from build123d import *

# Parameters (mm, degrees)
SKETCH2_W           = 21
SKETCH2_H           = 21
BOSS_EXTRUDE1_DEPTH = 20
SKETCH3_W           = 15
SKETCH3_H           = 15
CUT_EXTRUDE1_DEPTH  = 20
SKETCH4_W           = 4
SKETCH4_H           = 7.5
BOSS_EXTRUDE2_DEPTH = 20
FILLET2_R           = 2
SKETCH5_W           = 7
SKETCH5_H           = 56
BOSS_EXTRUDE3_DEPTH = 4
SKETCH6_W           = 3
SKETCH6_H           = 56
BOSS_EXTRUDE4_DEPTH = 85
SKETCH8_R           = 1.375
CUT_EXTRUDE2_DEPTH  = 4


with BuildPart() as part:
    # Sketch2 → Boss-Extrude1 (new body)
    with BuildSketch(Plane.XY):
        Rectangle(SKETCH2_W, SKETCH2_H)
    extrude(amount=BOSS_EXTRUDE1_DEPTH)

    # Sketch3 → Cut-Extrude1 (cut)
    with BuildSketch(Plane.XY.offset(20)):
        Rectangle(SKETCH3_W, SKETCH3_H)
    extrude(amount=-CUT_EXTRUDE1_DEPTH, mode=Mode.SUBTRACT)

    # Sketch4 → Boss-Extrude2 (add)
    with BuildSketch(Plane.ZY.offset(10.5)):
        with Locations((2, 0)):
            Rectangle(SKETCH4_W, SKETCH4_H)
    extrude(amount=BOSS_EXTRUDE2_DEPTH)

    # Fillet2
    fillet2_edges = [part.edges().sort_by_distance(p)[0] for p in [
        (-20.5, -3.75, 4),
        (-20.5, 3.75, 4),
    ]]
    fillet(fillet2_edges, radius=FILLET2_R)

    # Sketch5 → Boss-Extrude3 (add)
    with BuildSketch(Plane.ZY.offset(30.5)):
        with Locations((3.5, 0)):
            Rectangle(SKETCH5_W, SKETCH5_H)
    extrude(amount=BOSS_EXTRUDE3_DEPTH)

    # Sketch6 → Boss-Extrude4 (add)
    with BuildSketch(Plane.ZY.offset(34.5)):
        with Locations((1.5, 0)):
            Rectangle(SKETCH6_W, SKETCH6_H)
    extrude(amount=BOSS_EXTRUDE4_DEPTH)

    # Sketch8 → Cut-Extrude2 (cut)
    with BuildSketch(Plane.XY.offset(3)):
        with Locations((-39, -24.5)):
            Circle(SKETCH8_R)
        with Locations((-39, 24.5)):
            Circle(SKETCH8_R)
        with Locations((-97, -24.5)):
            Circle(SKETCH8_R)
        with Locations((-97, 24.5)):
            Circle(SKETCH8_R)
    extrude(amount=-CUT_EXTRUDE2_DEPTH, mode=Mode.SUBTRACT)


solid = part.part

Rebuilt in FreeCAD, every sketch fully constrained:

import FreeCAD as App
import Part
import Sketcher


def edges_at(feature, points):
    """Names of the edges that pass closest to the given points."""
    edges = feature.Shape.Edges
    near = lambda p: min(range(len(edges)), key=lambda i: edges[i].distToShape(Part.Vertex(*p))[0])
    return sorted({f"Edge{near(p) + 1}" for p in points})


def add_polygon(sketch, points):
    """Adds a closed chain of lines whose ends are joined by coincident constraints."""
    first, n = sketch.GeometryCount, len(points)
    for a, b in zip(points, points[1:] + points[:1]):
        sketch.addGeometry(Part.LineSegment(App.Vector(*a, 0), App.Vector(*b, 0)), False)
    for i in range(n):
        sketch.addConstraint(Sketcher.Constraint("Coincident", first + i, 2, first + (i + 1) % n, 1))

doc = App.newDocument("Part")
body = doc.addObject("PartDesign::Body", "Body")

sketch1 = body.newObject("Sketcher::SketchObject", "Sketch")
sketch1.AttachmentSupport = (doc.getObject("XY_Plane"), [""])
sketch1.MapMode = "FlatFace"
add_polygon(sketch1, [(-10, 10), (-10, -10), (10, -10), (10, 10)])
sketch1.addConstraint([
    Sketcher.Constraint("Vertical", 0),
    Sketcher.Constraint("Horizontal", 1),
    Sketcher.Constraint("Vertical", 2),
    Sketcher.Constraint("Horizontal", 3),
    Sketcher.Constraint("Symmetric", 0, 2, 2, 2, -1, 1),
    Sketcher.Constraint("Equal", 3, 0),
    Sketcher.Constraint("DistanceX", 1, 1, 1, 2, 21.0),
])
pad1 = body.newObject("PartDesign::Pad", "Pad")
pad1.Profile = sketch1
pad1.Length = 20

sketch2 = body.newObject("Sketcher::SketchObject", "Sketch001")
sketch2.AttachmentSupport = (doc.getObject("XY_Plane"), [""])
sketch2.MapMode = "FlatFace"
sketch2.AttachmentOffset = App.Placement(App.Vector(0, 0, 20), App.Rotation())
add_polygon(sketch2, [(-8, 8), (-8, -8), (8, -8), (8, 8)])
sketch2.addConstraint([
    Sketcher.Constraint("Vertical", 0),
    Sketcher.Constraint("Horizontal", 1),
    Sketcher.Constraint("Vertical", 2),
    Sketcher.Constraint("Horizontal", 3),
    Sketcher.Constraint("Symmetric", 0, 2, 2, 2, -1, 1),
    Sketcher.Constraint("Equal", 3, 0),
    Sketcher.Constraint("DistanceX", 1, 1, 1, 2, 15.0),
])
pocket1 = body.newObject("PartDesign::Pocket", "Pocket")
pocket1.Profile = sketch2
pocket1.Length = 20

sketch3 = body.newObject("Sketcher::SketchObject", "Sketch002")
sketch3.AttachmentSupport = (doc.getObject("YZ_Plane"), [""])
sketch3.MapMode = "FlatFace"
sketch3.AttachmentOffset = App.Placement(App.Vector(0, 0, -10.5), App.Rotation())
add_polygon(sketch3, [(3.8, 0), (-3.8, 0), (-3.8, 4), (3.8, 4)])
sketch3.addConstraint([
    Sketcher.Constraint("Horizontal", 0),
    Sketcher.Constraint("Vertical", 1),
    Sketcher.Constraint("Horizontal", 2),
    Sketcher.Constraint("Vertical", 3),
    Sketcher.Constraint("Symmetric", 0, 2, 3, 2, -1, 1),
    Sketcher.Constraint("DistanceY", 1, 1, 1, 2, 4.0),
    Sketcher.Constraint("DistanceX", 0, 2, 0, 1, 7.5),
])
pad2 = body.newObject("PartDesign::Pad", "Pad001")
pad2.Profile = sketch3
pad2.Length = 20
pad2.Reversed = True
doc.recompute()

fillet = body.newObject("PartDesign::Fillet", "Fillet")
fillet.Base = (pad2, edges_at(pad2, [(-20.5, -3.75, 4), (-20.5, 3.75, 4)]))
fillet.Radius = 2

sketch4 = body.newObject("Sketcher::SketchObject", "Sketch003")
sketch4.AttachmentSupport = (doc.getObject("YZ_Plane"), [""])
sketch4.MapMode = "FlatFace"
sketch4.AttachmentOffset = App.Placement(App.Vector(0, 0, -30.5), App.Rotation())
add_polygon(sketch4, [(28, 0), (-28, 0), (-28, 7), (28, 7)])
sketch4.addConstraint([
    Sketcher.Constraint("Horizontal", 0),
    Sketcher.Constraint("Vertical", 1),
    Sketcher.Constraint("Horizontal", 2),
    Sketcher.Constraint("Vertical", 3),
    Sketcher.Constraint("Symmetric", 0, 2, 3, 2, -1, 1),
    Sketcher.Constraint("DistanceX", 0, 2, 0, 1, 56.0),
    Sketcher.Constraint("DistanceY", 1, 1, 1, 2, 7.0),
])
pad3 = body.newObject("PartDesign::Pad", "Pad002")
pad3.Profile = sketch4
pad3.Length = 4
pad3.Reversed = True

sketch5 = body.newObject("Sketcher::SketchObject", "Sketch004")
sketch5.AttachmentSupport = (doc.getObject("YZ_Plane"), [""])
sketch5.MapMode = "FlatFace"
sketch5.AttachmentOffset = App.Placement(App.Vector(0, 0, -34.5), App.Rotation())
add_polygon(sketch5, [(28, 0), (-28, 0), (-28, 3), (28, 3)])
sketch5.addConstraint([
    Sketcher.Constraint("Horizontal", 0),
    Sketcher.Constraint("Vertical", 1),
    Sketcher.Constraint("Horizontal", 2),
    Sketcher.Constraint("Vertical", 3),
    Sketcher.Constraint("Symmetric", 0, 2, 3, 2, -1, 1),
    Sketcher.Constraint("DistanceX", 0, 2, 0, 1, 56.0),
    Sketcher.Constraint("DistanceY", 1, 1, 1, 2, 3.0),
])
pad4 = body.newObject("PartDesign::Pad", "Pad003")
pad4.Profile = sketch5
pad4.Length = 85
pad4.Reversed = True

sketch6 = body.newObject("Sketcher::SketchObject", "Sketch005")
sketch6.AttachmentSupport = (doc.getObject("XY_Plane"), [""])
sketch6.MapMode = "FlatFace"
sketch6.AttachmentOffset = App.Placement(App.Vector(0, 0, 3), App.Rotation())
sketch6.addGeometry([
    Part.Circle(App.Vector(-39, -24.5, 0), App.Vector(0, 0, 1), 1.4),
    Part.Circle(App.Vector(-39, 24.5, 0), App.Vector(0, 0, 1), 1.4),
    Part.Circle(App.Vector(-97, -24.5, 0), App.Vector(0, 0, 1), 1.4),
    Part.Circle(App.Vector(-97, 24.5, 0), App.Vector(0, 0, 1), 1.4),
], False)
sketch6.addConstraint([
    Sketcher.Constraint("Equal", 0, 1),
    Sketcher.Constraint("Equal", 1, 2),
    Sketcher.Constraint("Equal", 2, 3),
    Sketcher.Constraint("Symmetric", 0, 3, 1, 3, -1),
    Sketcher.Constraint("Symmetric", 2, 3, 3, 3, -1),
    Sketcher.Constraint("Horizontal", 0, 3, 2, 3),
    Sketcher.Constraint("Diameter", 0, 2.75),
    Sketcher.Constraint("DistanceX", 0, 3, -1, 1, 39.0),
    Sketcher.Constraint("DistanceX", 2, 3, -1, 1, 97.0),
    Sketcher.Constraint("DistanceY", 0, 3, 1, 3, 49.0),
])
pocket2 = body.newObject("PartDesign::Pocket", "Pocket001")
pocket2.Profile = sketch6
pocket2.Length = 4

doc.recompute()
